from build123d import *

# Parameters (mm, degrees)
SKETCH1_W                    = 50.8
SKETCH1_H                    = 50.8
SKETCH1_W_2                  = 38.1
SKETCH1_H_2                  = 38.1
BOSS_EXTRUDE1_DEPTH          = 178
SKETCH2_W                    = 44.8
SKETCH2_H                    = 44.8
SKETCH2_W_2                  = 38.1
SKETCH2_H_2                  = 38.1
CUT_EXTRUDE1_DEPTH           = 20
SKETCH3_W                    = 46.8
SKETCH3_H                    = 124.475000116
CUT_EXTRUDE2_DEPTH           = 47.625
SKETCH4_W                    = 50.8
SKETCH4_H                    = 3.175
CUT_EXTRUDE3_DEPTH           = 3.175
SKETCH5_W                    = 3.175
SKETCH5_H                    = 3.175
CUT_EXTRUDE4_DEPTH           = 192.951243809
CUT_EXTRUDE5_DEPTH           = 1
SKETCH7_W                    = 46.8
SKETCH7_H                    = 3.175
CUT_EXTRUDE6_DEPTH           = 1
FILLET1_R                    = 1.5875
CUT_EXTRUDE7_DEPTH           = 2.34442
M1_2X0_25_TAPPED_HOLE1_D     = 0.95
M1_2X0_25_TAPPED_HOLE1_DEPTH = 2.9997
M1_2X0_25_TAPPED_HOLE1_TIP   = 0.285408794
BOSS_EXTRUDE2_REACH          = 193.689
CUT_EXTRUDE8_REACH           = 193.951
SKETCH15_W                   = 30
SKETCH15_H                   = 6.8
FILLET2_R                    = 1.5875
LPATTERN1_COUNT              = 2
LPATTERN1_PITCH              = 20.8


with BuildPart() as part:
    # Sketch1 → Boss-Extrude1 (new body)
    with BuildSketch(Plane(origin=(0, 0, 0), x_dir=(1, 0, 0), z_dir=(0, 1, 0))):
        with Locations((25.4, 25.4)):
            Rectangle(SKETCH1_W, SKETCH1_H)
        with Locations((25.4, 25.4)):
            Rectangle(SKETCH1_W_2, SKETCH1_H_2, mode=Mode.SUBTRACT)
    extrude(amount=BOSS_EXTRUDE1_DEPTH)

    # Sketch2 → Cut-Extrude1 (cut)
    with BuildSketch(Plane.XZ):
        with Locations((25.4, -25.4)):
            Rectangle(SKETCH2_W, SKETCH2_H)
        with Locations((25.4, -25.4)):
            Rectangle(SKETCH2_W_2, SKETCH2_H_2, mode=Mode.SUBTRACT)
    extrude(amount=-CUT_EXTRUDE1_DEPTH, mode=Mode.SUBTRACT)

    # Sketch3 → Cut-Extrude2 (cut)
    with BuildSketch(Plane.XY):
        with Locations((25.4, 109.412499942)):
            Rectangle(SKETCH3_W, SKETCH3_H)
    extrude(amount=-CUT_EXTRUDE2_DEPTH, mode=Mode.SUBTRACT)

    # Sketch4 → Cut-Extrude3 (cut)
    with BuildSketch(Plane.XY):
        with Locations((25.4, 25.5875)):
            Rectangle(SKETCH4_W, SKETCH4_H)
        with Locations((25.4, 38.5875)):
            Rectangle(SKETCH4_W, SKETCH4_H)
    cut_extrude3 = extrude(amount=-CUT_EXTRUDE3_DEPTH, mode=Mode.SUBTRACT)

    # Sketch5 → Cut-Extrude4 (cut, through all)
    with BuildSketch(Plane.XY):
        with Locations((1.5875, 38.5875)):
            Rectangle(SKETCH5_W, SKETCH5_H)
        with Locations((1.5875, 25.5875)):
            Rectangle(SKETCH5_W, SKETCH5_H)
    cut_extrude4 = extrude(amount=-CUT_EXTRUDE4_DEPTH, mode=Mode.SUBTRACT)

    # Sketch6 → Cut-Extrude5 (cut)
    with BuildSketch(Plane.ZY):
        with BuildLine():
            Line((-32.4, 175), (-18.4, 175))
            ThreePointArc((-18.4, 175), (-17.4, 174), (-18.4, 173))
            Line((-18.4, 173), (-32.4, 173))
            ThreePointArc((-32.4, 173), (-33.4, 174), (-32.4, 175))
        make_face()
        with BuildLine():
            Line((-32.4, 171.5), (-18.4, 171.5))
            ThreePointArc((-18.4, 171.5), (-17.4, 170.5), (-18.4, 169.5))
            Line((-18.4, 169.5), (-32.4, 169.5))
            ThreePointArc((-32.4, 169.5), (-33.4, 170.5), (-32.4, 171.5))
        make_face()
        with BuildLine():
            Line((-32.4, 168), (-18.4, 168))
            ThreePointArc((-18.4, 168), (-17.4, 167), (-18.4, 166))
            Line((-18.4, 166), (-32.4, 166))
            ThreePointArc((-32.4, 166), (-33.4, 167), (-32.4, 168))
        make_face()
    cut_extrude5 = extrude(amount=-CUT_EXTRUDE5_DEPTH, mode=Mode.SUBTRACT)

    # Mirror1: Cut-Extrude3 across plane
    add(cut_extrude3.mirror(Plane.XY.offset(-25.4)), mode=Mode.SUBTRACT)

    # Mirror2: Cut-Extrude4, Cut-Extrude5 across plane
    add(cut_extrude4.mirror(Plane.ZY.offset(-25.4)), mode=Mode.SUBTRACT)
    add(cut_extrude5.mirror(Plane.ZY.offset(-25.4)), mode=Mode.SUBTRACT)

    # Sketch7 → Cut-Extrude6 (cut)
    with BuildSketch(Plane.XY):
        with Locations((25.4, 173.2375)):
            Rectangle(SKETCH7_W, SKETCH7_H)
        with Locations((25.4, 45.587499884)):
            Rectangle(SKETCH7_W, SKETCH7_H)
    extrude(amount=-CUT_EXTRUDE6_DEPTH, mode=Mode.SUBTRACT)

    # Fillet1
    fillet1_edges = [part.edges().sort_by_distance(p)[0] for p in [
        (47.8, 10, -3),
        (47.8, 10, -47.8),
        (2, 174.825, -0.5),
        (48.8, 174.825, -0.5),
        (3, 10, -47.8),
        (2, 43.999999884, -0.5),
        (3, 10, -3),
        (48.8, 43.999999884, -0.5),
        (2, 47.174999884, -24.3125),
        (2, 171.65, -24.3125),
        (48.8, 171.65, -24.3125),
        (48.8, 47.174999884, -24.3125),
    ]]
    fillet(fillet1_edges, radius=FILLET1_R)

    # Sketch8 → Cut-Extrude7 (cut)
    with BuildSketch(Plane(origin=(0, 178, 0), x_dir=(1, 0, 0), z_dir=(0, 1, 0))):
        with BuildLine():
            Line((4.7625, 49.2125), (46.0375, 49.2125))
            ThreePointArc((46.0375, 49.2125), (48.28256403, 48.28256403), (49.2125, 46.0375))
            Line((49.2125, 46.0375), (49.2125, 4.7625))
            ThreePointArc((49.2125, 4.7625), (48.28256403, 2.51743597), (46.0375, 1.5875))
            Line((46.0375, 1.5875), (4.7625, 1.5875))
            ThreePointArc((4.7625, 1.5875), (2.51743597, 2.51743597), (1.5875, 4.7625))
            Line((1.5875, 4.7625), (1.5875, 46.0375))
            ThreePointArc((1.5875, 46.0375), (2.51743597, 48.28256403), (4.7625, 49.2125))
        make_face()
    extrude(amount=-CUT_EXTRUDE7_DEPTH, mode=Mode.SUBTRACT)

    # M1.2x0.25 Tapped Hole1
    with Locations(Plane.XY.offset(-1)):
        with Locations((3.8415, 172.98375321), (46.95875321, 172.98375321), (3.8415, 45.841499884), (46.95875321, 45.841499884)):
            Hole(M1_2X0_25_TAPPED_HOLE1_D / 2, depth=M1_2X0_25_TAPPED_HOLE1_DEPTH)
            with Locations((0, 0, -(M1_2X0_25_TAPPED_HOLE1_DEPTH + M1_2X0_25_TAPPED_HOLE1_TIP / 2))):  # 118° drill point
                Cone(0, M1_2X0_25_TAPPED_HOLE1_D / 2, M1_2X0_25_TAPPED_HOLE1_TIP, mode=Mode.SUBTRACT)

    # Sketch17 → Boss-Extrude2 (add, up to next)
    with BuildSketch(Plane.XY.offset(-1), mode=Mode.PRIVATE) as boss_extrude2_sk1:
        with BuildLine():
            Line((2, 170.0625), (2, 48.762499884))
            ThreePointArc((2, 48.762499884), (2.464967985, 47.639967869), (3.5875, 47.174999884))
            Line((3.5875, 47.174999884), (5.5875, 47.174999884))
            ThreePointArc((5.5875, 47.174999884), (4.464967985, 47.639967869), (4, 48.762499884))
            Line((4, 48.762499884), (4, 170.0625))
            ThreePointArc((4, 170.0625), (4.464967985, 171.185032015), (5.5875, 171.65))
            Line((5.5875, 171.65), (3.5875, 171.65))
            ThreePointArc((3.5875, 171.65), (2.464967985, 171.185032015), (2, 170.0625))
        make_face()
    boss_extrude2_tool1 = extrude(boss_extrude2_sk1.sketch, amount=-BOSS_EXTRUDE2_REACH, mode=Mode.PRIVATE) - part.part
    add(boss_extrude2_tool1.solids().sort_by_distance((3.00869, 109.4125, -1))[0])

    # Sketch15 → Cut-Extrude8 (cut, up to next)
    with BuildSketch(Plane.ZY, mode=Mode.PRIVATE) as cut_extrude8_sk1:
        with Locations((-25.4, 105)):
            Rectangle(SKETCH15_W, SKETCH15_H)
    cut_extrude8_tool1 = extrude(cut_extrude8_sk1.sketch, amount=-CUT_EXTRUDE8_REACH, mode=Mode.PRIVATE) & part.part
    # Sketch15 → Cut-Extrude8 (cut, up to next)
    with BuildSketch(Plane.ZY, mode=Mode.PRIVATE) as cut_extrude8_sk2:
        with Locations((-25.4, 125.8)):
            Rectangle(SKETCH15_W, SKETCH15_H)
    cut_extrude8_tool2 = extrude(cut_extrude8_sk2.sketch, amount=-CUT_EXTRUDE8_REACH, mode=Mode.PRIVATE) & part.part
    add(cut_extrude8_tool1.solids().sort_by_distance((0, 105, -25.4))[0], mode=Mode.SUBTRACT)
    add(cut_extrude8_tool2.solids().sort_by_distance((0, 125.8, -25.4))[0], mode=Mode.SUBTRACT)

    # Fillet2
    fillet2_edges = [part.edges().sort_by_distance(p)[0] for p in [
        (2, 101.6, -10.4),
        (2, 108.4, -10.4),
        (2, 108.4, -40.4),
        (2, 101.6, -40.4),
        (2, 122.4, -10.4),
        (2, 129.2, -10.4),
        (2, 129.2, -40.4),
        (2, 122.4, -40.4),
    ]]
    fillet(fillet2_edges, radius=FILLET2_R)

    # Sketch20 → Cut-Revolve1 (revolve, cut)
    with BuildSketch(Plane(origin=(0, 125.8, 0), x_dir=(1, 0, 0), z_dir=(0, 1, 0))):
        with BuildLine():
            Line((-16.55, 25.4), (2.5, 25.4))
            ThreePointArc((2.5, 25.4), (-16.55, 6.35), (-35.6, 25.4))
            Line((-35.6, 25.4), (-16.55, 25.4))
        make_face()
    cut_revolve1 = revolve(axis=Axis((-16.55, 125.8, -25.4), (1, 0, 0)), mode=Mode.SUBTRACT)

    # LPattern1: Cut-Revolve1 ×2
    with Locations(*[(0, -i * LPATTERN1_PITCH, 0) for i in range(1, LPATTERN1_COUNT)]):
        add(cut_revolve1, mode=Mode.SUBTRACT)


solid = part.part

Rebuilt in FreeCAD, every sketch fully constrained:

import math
import FreeCAD as App
import Part
import Sketcher
from FreeCAD import Vector


def edges_at(feature, points):
    """Names of the edges that pass closest to the given points."""
    edges = feature.Shape.Edges
    near = lambda p: min(range(len(edges)), key=lambda i: edges[i].distToShape(Part.Vertex(*p))[0])
    return sorted({f"Edge{near(p) + 1}" for p in points})

doc = App.newDocument("Part")
params = doc.addObject("Spreadsheet::Sheet", "Params")
for row, (alias, value) in enumerate([
    ("sketch1_width", "50.8 mm"),
    ("sketch1_width2", "38.1 mm"),
    ("pad1_length", "178 mm"),
    ("sketch2_width", "44.8 mm"),
    ("sketch2_width2", "38.1 mm"),
    ("pocket1_length", "20 mm"),
    ("sketch3_width", "46.8 mm"),
    ("pocket2_length", "47.625 mm"),
    ("sketch4_width", "50.8 mm"),
    ("pocket3_length", "3.175 mm"),
    ("sketch6_radius", "1 mm"),
    ("sketch6_height", "14 mm"),
    ("pocket5_length", "1 mm"),
    ("sketch7_width", "46.8 mm"),
    ("pocket6_length", "1 mm"),
    ("fillet_radius", "1.5875 mm"),
    ("pocket7_length", "2.34442 mm"),
    ("sketch9_diameter", "0.95 mm"),
    ("hole_diameter", "0.95 mm"),
    ("hole_depth", "2.9997 mm"),
    ("sketch10_width", "2 mm"),
    ("sketch10_height", "121.3 mm"),
    ("sketch11_height", "30 mm"),
    ("sketch11_width", "6.8 mm"),
    ("sketch12_height", "30 mm"),
    ("sketch12_width", "6.8 mm"),
    ("fillet2_radius", "1.5875 mm"),
    ("sketch13_radius", "19.05 mm"),
    ("groove_angle", "360 deg"),
    ("linearpattern_pitch", "20.8 mm"),
], start=1):
    params.set(f"A{row}", alias)
    params.set(f"B{row}", "=" + value)
    params.setAlias(f"B{row}", alias)

body = doc.addObject("PartDesign::Body", "Body")

# Sketch on XZ plane
sketch1 = body.newObject("Sketcher::SketchObject", "Sketch")
sketch1.AttachmentSupport = (doc.getObject("XZ_Plane"), [""])
sketch1.MapMode = "FlatFace"
sketch1.addGeometry(Part.LineSegment(Vector(0, -51, 0), Vector(0, 0, 0)), False)
sketch1.addGeometry(Part.LineSegment(Vector(0, 0, 0), Vector(51, 0, 0)), False)
sketch1.addGeometry(Part.LineSegment(Vector(51, 0, 0), Vector(51, -51, 0)), False)
sketch1.addGeometry(Part.LineSegment(Vector(51, -51, 0), Vector(0, -51, 0)), False)
sketch1.addGeometry(Part.LineSegment(Vector(44, -6, 0), Vector(6, -6, 0)), False)
sketch1.addGeometry(Part.LineSegment(Vector(6, -6, 0), Vector(6, -44, 0)), False)
sketch1.addGeometry(Part.LineSegment(Vector(6, -44, 0), Vector(44, -44, 0)), False)
sketch1.addGeometry(Part.LineSegment(Vector(44, -44, 0), Vector(44, -6, 0)), False)
sketch1.addConstraint(Sketcher.Constraint("Coincident", 0, 2, 1, 1))
sketch1.addConstraint(Sketcher.Constraint("Coincident", 1, 2, 2, 1))
sketch1.addConstraint(Sketcher.Constraint("Coincident", 2, 2, 3, 1))
sketch1.addConstraint(Sketcher.Constraint("Coincident", 3, 2, 0, 1))
sketch1.addConstraint(Sketcher.Constraint("Coincident", 4, 2, 5, 1))
sketch1.addConstraint(Sketcher.Constraint("Coincident", 5, 2, 6, 1))
sketch1.addConstraint(Sketcher.Constraint("Coincident", 6, 2, 7, 1))
sketch1.addConstraint(Sketcher.Constraint("Coincident", 7, 2, 4, 1))
sketch1.addConstraint(Sketcher.Constraint("Vertical", 0))
sketch1.addConstraint(Sketcher.Constraint("Horizontal", 1))
sketch1.addConstraint(Sketcher.Constraint("Vertical", 2))
sketch1.addConstraint(Sketcher.Constraint("Horizontal", 3))
sketch1.addConstraint(Sketcher.Constraint("Horizontal", 4))
sketch1.addConstraint(Sketcher.Constraint("Vertical", 5))
sketch1.addConstraint(Sketcher.Constraint("Horizontal", 6))
sketch1.addConstraint(Sketcher.Constraint("Vertical", 7))
sketch1.addConstraint(Sketcher.Constraint("Coincident", 0, 2, -1, 1))
sketch1.addConstraint(Sketcher.Constraint("Equal", 3, 0))
sketch1.addConstraint(Sketcher.Constraint("Equal", 6, 5))
sketch1.addConstraint(Sketcher.Constraint("DistanceX", 1, 1, 1, 2, 50.8))
sketch1.addConstraint(Sketcher.Constraint("DistanceX", 4, 2, 4, 1, 38.1))
sketch1.addConstraint(Sketcher.Constraint("DistanceX", -1, 1, 4, 2, 6.35))
sketch1.addConstraint(Sketcher.Constraint("DistanceY", 4, 2, -1, 1, 6.35))
sketch1.setExpression("Constraints[19]", "Params.sketch1_width")
sketch1.setExpression("Constraints[20]", "Params.sketch1_width2")
pad1 = body.newObject("PartDesign::Pad", "Pad")
pad1.Profile = sketch1
pad1.setExpression("Length", "Params.pad1_length")
pad1.Reversed = True

# Sketch on XZ plane
sketch2 = body.newObject("Sketcher::SketchObject", "Sketch001")
sketch2.AttachmentSupport = (doc.getObject("XZ_Plane"), [""])
sketch2.MapMode = "FlatFace"
sketch2.addGeometry(Part.LineSegment(Vector(3, -3, 0), Vector(3, -48, 0)), False)
sketch2.addGeometry(Part.LineSegment(Vector(3, -48, 0), Vector(48, -48, 0)), False)
sketch2.addGeometry(Part.LineSegment(Vector(48, -48, 0), Vector(48, -3, 0)), False)
sketch2.addGeometry(Part.LineSegment(Vector(48, -3, 0), Vector(3, -3, 0)), False)
sketch2.addGeometry(Part.LineSegment(Vector(44, -44, 0), Vector(6, -44, 0)), False)
sketch2.addGeometry(Part.LineSegment(Vector(6, -44, 0), Vector(6, -6, 0)), False)
sketch2.addGeometry(Part.LineSegment(Vector(6, -6, 0), Vector(44, -6, 0)), False)
sketch2.addGeometry(Part.LineSegment(Vector(44, -6, 0), Vector(44, -44, 0)), False)
sketch2.addConstraint(Sketcher.Constraint("Coincident", 0, 2, 1, 1))
sketch2.addConstraint(Sketcher.Constraint("Coincident", 1, 2, 2, 1))
sketch2.addConstraint(Sketcher.Constraint("Coincident", 2, 2, 3, 1))
sketch2.addConstraint(Sketcher.Constraint("Coincident", 3, 2, 0, 1))
sketch2.addConstraint(Sketcher.Constraint("Coincident", 4, 2, 5, 1))
sketch2.addConstraint(Sketcher.Constraint("Coincident", 5, 2, 6, 1))
sketch2.addConstraint(Sketcher.Constraint("Coincident", 6, 2, 7, 1))
sketch2.addConstraint(Sketcher.Constraint("Coincident", 7, 2, 4, 1))
sketch2.addConstraint(Sketcher.Constraint("Vertical", 0))
sketch2.addConstraint(Sketcher.Constraint("Horizontal", 1))
sketch2.addConstraint(Sketcher.Constraint("Vertical", 2))
sketch2.addConstraint(Sketcher.Constraint("Horizontal", 3))
sketch2.addConstraint(Sketcher.Constraint("Horizontal", 4))
sketch2.addConstraint(Sketcher.Constraint("Vertical", 5))
sketch2.addConstraint(Sketcher.Constraint("Horizontal", 6))
sketch2.addConstraint(Sketcher.Constraint("Vertical", 7))
sketch2.addConstraint(Sketcher.Constraint("Equal", 3, 0))
sketch2.addConstraint(Sketcher.Constraint("Equal", 6, 5))
sketch2.addConstraint(Sketcher.Constraint("DistanceX", 1, 1, 1, 2, 44.8))
sketch2.addConstraint(Sketcher.Constraint("DistanceX", 4, 2, 4, 1, 38.1))
sketch2.addConstraint(Sketcher.Constraint("DistanceX", -1, 1, 0, 2, 3.0))
sketch2.addConstraint(Sketcher.Constraint("DistanceY", 2, 2, -1, 1, 3.0))
sketch2.addConstraint(Sketcher.Constraint("DistanceX", -1, 1, 4, 2, 6.35))
sketch2.addConstraint(Sketcher.Constraint("DistanceY", 4, 2, -1, 1, 44.45))
sketch2.setExpression("Constraints[18]", "Params.sketch2_width")
sketch2.setExpression("Constraints[19]", "Params.sketch2_width2")
pocket1 = body.newObject("PartDesign::Pocket", "Pocket")
pocket1.Profile = sketch2
pocket1.setExpression("Length", "Params.pocket1_length")

# Sketch on XY plane
sketch3 = body.newObject("Sketcher::SketchObject", "Sketch002")
sketch3.AttachmentSupport = (doc.getObject("XY_Plane"), [""])
sketch3.MapMode = "FlatFace"
sketch3.addGeometry(Part.LineSegment(Vector(2, 172, 0), Vector(2, 47, 0)), False)
sketch3.addGeometry(Part.LineSegment(Vector(2, 47, 0), Vector(49, 47, 0)), False)
sketch3.addGeometry(Part.LineSegment(Vector(49, 47, 0), Vector(49, 172, 0)), False)
sketch3.addGeometry(Part.LineSegment(Vector(49, 172, 0), Vector(2, 172, 0)), False)
sketch3.addConstraint(Sketcher.Constraint("Coincident", 0, 2, 1, 1))
sketch3.addConstraint(Sketcher.Constraint("Coincident", 1, 2, 2, 1))
sketch3.addConstraint(Sketcher.Constraint("Coincident", 2, 2, 3, 1))
sketch3.addConstraint(Sketcher.Constraint("Coincident", 3, 2, 0, 1))
sketch3.addConstraint(Sketcher.Constraint("Vertical", 0))
sketch3.addConstraint(Sketcher.Constraint("Horizontal", 1))
sketch3.addConstraint(Sketcher.Constraint("Vertical", 2))
sketch3.addConstraint(Sketcher.Constraint("Horizontal", 3))
sketch3.addConstraint(Sketcher.Constraint("DistanceX", 1, 1, 1, 2, 46.8))
sketch3.addConstraint(Sketcher.Constraint("DistanceX", -1, 1, 0, 2, 2.0))
sketch3.addConstraint(Sketcher.Constraint("DistanceY", 0, 2, 0, 1, 124.475))
sketch3.addConstraint(Sketcher.Constraint("DistanceY", -1, 1, 2, 2, 171.65))
sketch3.setExpression("Constraints[8]", "Params.sketch3_width")
pocket2 = body.newObject("PartDesign::Pocket", "Pocket001")
pocket2.Profile = sketch3
pocket2.setExpression("Length", "Params.pocket2_length")

# Sketch on XY plane
sketch4 = body.newObject("Sketcher::SketchObject", "Sketch003")
sketch4.AttachmentSupport = (doc.getObject("XY_Plane"), [""])
sketch4.MapMode = "FlatFace"
sketch4.addGeometry(Part.LineSegment(Vector(0, 27.2, 0), Vector(0, 24, 0)), False)
sketch4.addGeometry(Part.LineSegment(Vector(0, 24, 0), Vector(50.8, 24, 0)), False)
sketch4.addGeometry(Part.LineSegment(Vector(50.8, 24, 0), Vector(50.8, 27.2, 0)), False)
sketch4.addGeometry(Part.LineSegment(Vector(50.8, 27.2, 0), Vector(0, 27.2, 0)), False)
sketch4.addGeometry(Part.LineSegment(Vector(0, 40.2, 0), Vector(0, 37, 0)), False)
sketch4.addGeometry(Part.LineSegment(Vector(0, 37, 0), Vector(50.8, 37, 0)), False)
sketch4.addGeometry(Part.LineSegment(Vector(50.8, 37, 0), Vector(50.8, 40.2, 0)), False)
sketch4.addGeometry(Part.LineSegment(Vector(50.8, 40.2, 0), Vector(0, 40.2, 0)), False)
sketch4.addConstraint(Sketcher.Constraint("Coincident", 0, 2, 1, 1))
sketch4.addConstraint(Sketcher.Constraint("Coincident", 1, 2, 2, 1))
sketch4.addConstraint(Sketcher.Constraint("Coincident", 2, 2, 3, 1))
sketch4.addConstraint(Sketcher.Constraint("Coincident", 3, 2, 0, 1))
sketch4.addConstraint(Sketcher.Constraint("Coincident", 4, 2, 5, 1))
sketch4.addConstraint(Sketcher.Constraint("Coincident", 5, 2, 6, 1))
sketch4.addConstraint(Sketcher.Constraint("Coincident", 6, 2, 7, 1))
sketch4.addConstraint(Sketcher.Constraint("Coincident", 7, 2, 4, 1))
sketch4.addConstraint(Sketcher.Constraint("Vertical", 0))
sketch4.addConstraint(Sketcher.Constraint("Horizontal", 1))
sketch4.addConstraint(Sketcher.Constraint("Vertical", 2))
sketch4.addConstraint(Sketcher.Constraint("Horizontal", 3))
sketch4.addConstraint(Sketcher.Constraint("Vertical", 4))
sketch4.addConstraint(Sketcher.Constraint("Horizontal", 5))
sketch4.addConstraint(Sketcher.Constraint("Vertical", 6))
sketch4.addConstraint(Sketcher.Constraint("Horizontal", 7))
sketch4.addConstraint(Sketcher.Constraint("PointOnObject", 0, 2, -2))
sketch4.addConstraint(Sketcher.Constraint("PointOnObject", 4, 2, -2))
sketch4.addConstraint(Sketcher.Constraint("Vertical", 2, 2, 5, 2))
sketch4.addConstraint(Sketcher.Constraint("Equal", 2, 4))
sketch4.addConstraint(Sketcher.Constraint("DistanceX", 1, 1, 1, 2, 50.8))
sketch4.addConstraint(Sketcher.Constraint("DistanceY", -1, 1, 0, 2, 24.0))
sketch4.addConstraint(Sketcher.Constraint("DistanceY", -1, 1, 4, 2, 37.0))
sketch4.addConstraint(Sketcher.Constraint("DistanceY", 0, 2, 0, 1, 3.175))
sketch4.setExpression("Constraints[20]", "Params.sketch4_width")
pocket3 = body.newObject("PartDesign::Pocket", "Pocket002")
pocket3.Profile = sketch4
pocket3.setExpression("Length", "Params.pocket3_length")

# Sketch on XY plane
sketch5 = body.newObject("Sketcher::SketchObject", "Sketch004")
sketch5.AttachmentSupport = (doc.getObject("XY_Plane"), [""])
sketch5.MapMode = "FlatFace"
sketch5.addGeometry(Part.LineSegment(Vector(0, 40.2, 0), Vector(0, 37, 0)), False)
sketch5.addGeometry(Part.LineSegment(Vector(0, 37, 0), Vector(3.2, 37, 0)), False)
sketch5.addGeometry(Part.LineSegment(Vector(3.2, 37, 0), Vector(3.2, 40.2, 0)), False)
sketch5.addGeometry(Part.LineSegment(Vector(3.2, 40.2, 0), Vector(0, 40.2, 0)), False)
sketch5.addGeometry(Part.LineSegment(Vector(0, 27.2, 0), Vector(0, 24, 0)), False)
sketch5.addGeometry(Part.LineSegment(Vector(0, 24, 0), Vector(3.2, 24, 0)), False)
sketch5.addGeometry(Part.LineSegment(Vector(3.2, 24, 0), Vector(3.2, 27.2, 0)), False)
sketch5.addGeometry(Part.LineSegment(Vector(3.2, 27.2, 0), Vector(0, 27.2, 0)), False)
sketch5.addConstraint(Sketcher.Constraint("Coincident", 0, 2, 1, 1))
sketch5.addConstraint(Sketcher.Constraint("Coincident", 1, 2, 2, 1))
sketch5.addConstraint(Sketcher.Constraint("Coincident", 2, 2, 3, 1))
sketch5.addConstraint(Sketcher.Constraint("Coincident", 3, 2, 0, 1))
sketch5.addConstraint(Sketcher.Constraint("Coincident", 4, 2, 5, 1))
sketch5.addConstraint(Sketcher.Constraint("Coincident", 5, 2, 6, 1))
sketch5.addConstraint(Sketcher.Constraint("Coincident", 6, 2, 7, 1))
sketch5.addConstraint(Sketcher.Constraint("Coincident", 7, 2, 4, 1))
sketch5.addConstraint(Sketcher.Constraint("Vertical", 0))
sketch5.addConstraint(Sketcher.Constraint("Horizontal", 1))
sketch5.addConstraint(Sketcher.Constraint("Vertical", 2))
sketch5.addConstraint(Sketcher.Constraint("Horizontal", 3))
sketch5.addConstraint(Sketcher.Constraint("Vertical", 4))
sketch5.addConstraint(Sketcher.Constraint("Horizontal", 5))
sketch5.addConstraint(Sketcher.Constraint("Vertical", 6))
sketch5.addConstraint(Sketcher.Constraint("Horizontal", 7))
sketch5.addConstraint(Sketcher.Constraint("PointOnObject", 0, 2, -2))
sketch5.addConstraint(Sketcher.Constraint("PointOnObject", 4, 2, -2))
sketch5.addConstraint(Sketcher.Constraint("Vertical", 2, 2, 5, 2))
sketch5.addConstraint(Sketcher.Constraint("Equal", 7, 0))
sketch5.addConstraint(Sketcher.Constraint("Equal", 2, 4))
sketch5.addConstraint(Sketcher.Constraint("DistanceY", -1, 1, 0, 2, 37.0))
sketch5.addConstraint(Sketcher.Constraint("DistanceY", -1, 1, 4, 2, 24.0))
sketch5.addConstraint(Sketcher.Constraint("DistanceX", 1, 1, 1, 2, 3.175))
pocket4 = body.newObject("PartDesign::Pocket", "Pocket003")
pocket4.Profile = sketch5
pocket4.Type = "ThroughAll"

# Sketch on YZ plane
sketch6 = body.newObject("Sketcher::SketchObject", "Sketch005")
sketch6.AttachmentSupport = (doc.getObject("YZ_Plane"), [""])
sketch6.MapMode = "FlatFace"
sketch6.addGeometry(Part.LineSegment(Vector(175, -18.4, 0), Vector(175, -32.4, 0)), False)
sketch6.addGeometry(Part.ArcOfCircle(Part.Circle(Vector(174, -32.4, 0), Vector(0, 0, 1), 1), math.radians(180), math.radians(360)), False)
sketch6.addGeometry(Part.LineSegment(Vector(173, -32.4, 0), Vector(173, -18.4, 0)), False)
sketch6.addGeometry(Part.ArcOfCircle(Part.Circle(Vector(174, -18.4, 0), Vector(0, 0, 1), 1), math.radians(0), math.radians(180)), False)
sketch6.addGeometry(Part.LineSegment(Vector(171.5, -18.4, 0), Vector(171.5, -32.4, 0)), False)
sketch6.addGeometry(Part.ArcOfCircle(Part.Circle(Vector(170.5, -32.4, 0), Vector(0, 0, 1), 1), math.radians(180), math.radians(360)), False)
sketch6.addGeometry(Part.LineSegment(Vector(169.5, -32.4, 0), Vector(169.5, -18.4, 0)), False)
sketch6.addGeometry(Part.ArcOfCircle(Part.Circle(Vector(170.5, -18.4, 0), Vector(0, 0, 1), 1), math.radians(0), math.radians(180)), False)
sketch6.addGeometry(Part.LineSegment(Vector(168, -18.4, 0), Vector(168, -32.4, 0)), False)
sketch6.addGeometry(Part.ArcOfCircle(Part.Circle(Vector(167, -32.4, 0), Vector(0, 0, 1), 1), math.radians(180), math.radians(360)), False)
sketch6.addGeometry(Part.LineSegment(Vector(166, -32.4, 0), Vector(166, -18.4, 0)), False)
sketch6.addGeometry(Part.ArcOfCircle(Part.Circle(Vector(167, -18.4, 0), Vector(0, 0, 1), 1), math.radians(0), math.radians(180)), False)
sketch6.addConstraint(Sketcher.Constraint("Tangent", 0, 2, 1, 2))
sketch6.addConstraint(Sketcher.Constraint("Tangent", 1, 1, 2, 1))
sketch6.addConstraint(Sketcher.Constraint("Tangent", 2, 2, 3, 2))
sketch6.addConstraint(Sketcher.Constraint("Tangent", 3, 1, 0, 1))
sketch6.addConstraint(Sketcher.Constraint("Tangent", 4, 2, 5, 2))
sketch6.addConstraint(Sketcher.Constraint("Tangent", 5, 1, 6, 1))
sketch6.addConstraint(Sketcher.Constraint("Tangent", 6, 2, 7, 2))
sketch6.addConstraint(Sketcher.Constraint("Tangent", 7, 1, 4, 1))
sketch6.addConstraint(Sketcher.Constraint("Tangent", 8, 2, 9, 2))
sketch6.addConstraint(Sketcher.Constraint("Tangent", 9, 1, 10, 1))
sketch6.addConstraint(Sketcher.Constraint("Tangent", 10, 2, 11, 2))
sketch6.addConstraint(Sketcher.Constraint("Tangent", 11, 1, 8, 1))
sketch6.addConstraint(Sketcher.Constraint("Vertical", 0))
sketch6.addConstraint(Sketcher.Constraint("Vertical", 2))
sketch6.addConstraint(Sketcher.Constraint("Vertical", 4))
sketch6.addConstraint(Sketcher.Constraint("Vertical", 6))
sketch6.addConstraint(Sketcher.Constraint("Vertical", 8))
sketch6.addConstraint(Sketcher.Constraint("Vertical", 10))
sketch6.addConstraint(Sketcher.Constraint("Equal", 3, 5))
sketch6.addConstraint(Sketcher.Constraint("Equal", 7, 9))
sketch6.addConstraint(Sketcher.Constraint("Horizontal", 1, 3, 5, 3))
sketch6.addConstraint(Sketcher.Constraint("Horizontal", 3, 3, 7, 3))
sketch6.addConstraint(Sketcher.Constraint("Horizontal", 5, 3, 9, 3))
sketch6.addConstraint(Sketcher.Constraint("Horizontal", 7, 3, 11, 3))
sketch6.addConstraint(Sketcher.Constraint("Radius", 1, 1.0))
sketch6.addConstraint(Sketcher.Constraint("DistanceY", 0, 2, 0, 1, 14.0))
sketch6.addConstraint(Sketcher.Constraint("DistanceX", -1, 1, 1, 3, 174.0))
sketch6.addConstraint(Sketcher.Constraint("DistanceX", -1, 1, 9, 3, 167.0))
sketch6.addConstraint(Sketcher.Constraint("DistanceY", 1, 3, -1, 1, 32.4))
sketch6.addConstraint(Sketcher.Constraint("DistanceX", -1, 1, 5, 3, 170.5))
sketch6.setExpression("Constraints[24]", "Params.sketch6_radius")
sketch6.setExpression("Constraints[25]", "Params.sketch6_height")
pocket5 = body.newObject("PartDesign::Pocket", "Pocket004")
pocket5.Profile = sketch6
pocket5.setExpression("Length", "Params.pocket5_length")
pocket5.Reversed = True
doc.recompute()

datumplane = body.newObject("PartDesign::Plane", "DatumPlane")
datumplane.AttachmentSupport = (doc.getObject("XY_Plane"), [""])
datumplane.MapMode = "FlatFace"
datumplane.AttachmentOffset = App.Placement(Vector(0, 0, -25.4), App.Rotation())
mirrored = body.newObject("PartDesign::Mirrored", "Mirrored")
mirrored.Originals = [pocket3]
mirrored.MirrorPlane = (datumplane, [""])
body.Tip = mirrored
doc.recompute()

datumplane2 = body.newObject("PartDesign::Plane", "DatumPlane001")
datumplane2.AttachmentSupport = (doc.getObject("YZ_Plane"), [""])
datumplane2.MapMode = "FlatFace"
datumplane2.AttachmentOffset = App.Placement(Vector(0, 0, 25.4), App.Rotation())
mirrored2 = body.newObject("PartDesign::Mirrored", "Mirrored001")
mirrored2.Originals = [pocket4, pocket5]
mirrored2.MirrorPlane = (datumplane2, [""])
body.Tip = mirrored2

# Sketch on XY plane
sketch7 = body.newObject("Sketcher::SketchObject", "Sketch006")
sketch7.AttachmentSupport = (doc.getObject("XY_Plane"), [""])
sketch7.MapMode = "FlatFace"
sketch7.addGeometry(Part.LineSegment(Vector(2, 174.8, 0), Vector(2, 171.7, 0)), False)
sketch7.addGeometry(Part.LineSegment(Vector(2, 171.7, 0), Vector(48.8, 171.7, 0)), False)
sketch7.addGeometry(Part.LineSegment(Vector(48.8, 171.7, 0), Vector(48.8, 174.8, 0)), False)
sketch7.addGeometry(Part.LineSegment(Vector(48.8, 174.8, 0), Vector(2, 174.8, 0)), False)
sketch7.addGeometry(Part.LineSegment(Vector(2, 47.2, 0), Vector(2, 44, 0)), False)
sketch7.addGeometry(Part.LineSegment(Vector(2, 44, 0), Vector(48.8, 44, 0)), False)
sketch7.addGeometry(Part.LineSegment(Vector(48.8, 44, 0), Vector(48.8, 47.2, 0)), False)
sketch7.addGeometry(Part.LineSegment(Vector(48.8, 47.2, 0), Vector(2, 47.2, 0)), False)
sketch7.addConstraint(Sketcher.Constraint("Coincident", 0, 2, 1, 1))
sketch7.addConstraint(Sketcher.Constraint("Coincident", 1, 2, 2, 1))
sketch7.addConstraint(Sketcher.Constraint("Coincident", 2, 2, 3, 1))
sketch7.addConstraint(Sketcher.Constraint("Coincident", 3, 2, 0, 1))
sketch7.addConstraint(Sketcher.Constraint("Coincident", 4, 2, 5, 1))
sketch7.addConstraint(Sketcher.Constraint("Coincident", 5, 2, 6, 1))
sketch7.addConstraint(Sketcher.Constraint("Coincident", 6, 2, 7, 1))
sketch7.addConstraint(Sketcher.Constraint("Coincident", 7, 2, 4, 1))
sketch7.addConstraint(Sketcher.Constraint("Vertical", 0))
sketch7.addConstraint(Sketcher.Constraint("Horizontal", 1))
sketch7.addConstraint(Sketcher.Constraint("Vertical", 2))
sketch7.addConstraint(Sketcher.Constraint("Horizontal", 3))
sketch7.addConstraint(Sketcher.Constraint("Vertical", 4))
sketch7.addConstraint(Sketcher.Constraint("Horizontal", 5))
sketch7.addConstraint(Sketcher.Constraint("Vertical", 6))
sketch7.addConstraint(Sketcher.Constraint("Horizontal", 7))
sketch7.addConstraint(Sketcher.Constraint("Vertical", 3, 2, 4, 2))
sketch7.addConstraint(Sketcher.Constraint("Vertical", 2, 2, 5, 2))
sketch7.addConstraint(Sketcher.Constraint("Equal", 2, 4))
sketch7.addConstraint(Sketcher.Constraint("DistanceX", 1, 1, 1, 2, 46.8))
sketch7.addConstraint(Sketcher.Constraint("DistanceX", -1, 1, 0, 2, 2.0))
sketch7.addConstraint(Sketcher.Constraint("DistanceY", -1, 1, 4, 2, 44.0))
sketch7.addConstraint(Sketcher.Constraint("DistanceY", 0, 2, 0, 1, 3.175))
sketch7.addConstraint(Sketcher.Constraint("DistanceY", -1, 1, 0, 2, 171.65))
sketch7.setExpression("Constraints[19]", "Params.sketch7_width")
pocket6 = body.newObject("PartDesign::Pocket", "Pocket005")
pocket6.Profile = sketch7
pocket6.setExpression("Length", "Params.pocket6_length")
doc.recompute()

fillet = body.newObject("PartDesign::Fillet", "Fillet")
fillet.Base = (pocket6, edges_at(pocket6, [
    (47.8, 10, -3),
    (47.8, 10, -47.8),
    (2, 174.825, -0.5),
    (48.8, 174.825, -0.5),
    (3, 10, -47.8),
    (2, 44, -0.5),
    (3, 10, -3),
    (48.8, 44, -0.5),
    (2, 47.175, -24.312),
    (2, 171.65, -24.312),
    (48.8, 171.65, -24.312),
    (48.8, 47.175, -24.312),
]))
fillet.setExpression("Radius", "Params.fillet_radius")

# Sketch on XZ plane
sketch8 = body.newObject("Sketcher::SketchObject", "Sketch007")
sketch8.AttachmentSupport = (doc.getObject("XZ_Plane"), [""])
sketch8.MapMode = "FlatFace"
sketch8.AttachmentOffset = App.Placement(Vector(0, 0, -178), App.Rotation())
sketch8.addGeometry(Part.LineSegment(Vector(46, -49.2, 0), Vector(4.8, -49.2, 0)), False)
sketch8.addGeometry(Part.ArcOfCircle(Part.Circle(Vector(4.8, -46, 0), Vector(0, 0, 1), 3.2), math.radians(-180), math.radians(-90)), False)
sketch8.addGeometry(Part.LineSegment(Vector(1.6, -46, 0), Vector(1.6, -4.8, 0)), False)
sketch8.addGeometry(Part.ArcOfCircle(Part.Circle(Vector(4.8, -4.8, 0), Vector(0, 0, 1), 3.2), math.radians(90), math.radians(180)), False)
sketch8.addGeometry(Part.LineSegment(Vector(4.8, -1.6, 0), Vector(46, -1.6, 0)), False)
sketch8.addGeometry(Part.ArcOfCircle(Part.Circle(Vector(46, -4.8, 0), Vector(0, 0, 1), 3.2), math.radians(0), math.radians(90)), False)
sketch8.addGeometry(Part.LineSegment(Vector(49.2, -4.8, 0), Vector(49.2, -46, 0)), False)
sketch8.addGeometry(Part.ArcOfCircle(Part.Circle(Vector(46, -46, 0), Vector(0, 0, 1), 3.2), math.radians(-90), math.radians(0)), False)
sketch8.addConstraint(Sketcher.Constraint("Tangent", 0, 2, 1, 2))
sketch8.addConstraint(Sketcher.Constraint("Tangent", 1, 1, 2, 1))
sketch8.addConstraint(Sketcher.Constraint("Tangent", 2, 2, 3, 2))
sketch8.addConstraint(Sketcher.Constraint("Tangent", 3, 1, 4, 1))
sketch8.addConstraint(Sketcher.Constraint("Tangent", 4, 2, 5, 2))
sketch8.addConstraint(Sketcher.Constraint("Tangent", 5, 1, 6, 1))
sketch8.addConstraint(Sketcher.Constraint("Tangent", 6, 2, 7, 2))
sketch8.addConstraint(Sketcher.Constraint("Tangent", 7, 1, 0, 1))
sketch8.addConstraint(Sketcher.Constraint("Horizontal", 0))
sketch8.addConstraint(Sketcher.Constraint("Vertical", 2))
sketch8.addConstraint(Sketcher.Constraint("Horizontal", 4))
sketch8.addConstraint(Sketcher.Constraint("Vertical", 6))
sketch8.addConstraint(Sketcher.Constraint("Equal", 1, 3))
sketch8.addConstraint(Sketcher.Constraint("Equal", 3, 5))
sketch8.addConstraint(Sketcher.Constraint("Equal", 5, 7))
sketch8.addConstraint(Sketcher.Constraint("Equal", 4, 2))
sketch8.addConstraint(Sketcher.Constraint("Radius", 1, 3.175))
sketch8.addConstraint(Sketcher.Constraint("DistanceX", 0, 2, 0, 1, 41.275))
sketch8.addConstraint(Sketcher.Constraint("DistanceX", -1, 1, 1, 3, 4.7625))
sketch8.addConstraint(Sketcher.Constraint("DistanceY", 1, 3, -1, 1, 46.0375))
pocket7 = body.newObject("PartDesign::Pocket", "Pocket006")
pocket7.Profile = sketch8
pocket7.setExpression("Length", "Params.pocket7_length")
pocket7.Reversed = True

# Sketch on XY plane
sketch9 = body.newObject("Sketcher::SketchObject", "Sketch008")
sketch9.AttachmentSupport = (doc.getObject("XY_Plane"), [""])
sketch9.MapMode = "FlatFace"
sketch9.AttachmentOffset = App.Placement(Vector(0, 0, -1), App.Rotation())
sketch9.addGeometry(Part.Circle(Vector(3.84, 172.98, 0), Vector(0, 0, 1), 0.47), False)
sketch9.addGeometry(Part.Circle(Vector(46.96, 172.98, 0), Vector(0, 0, 1), 0.47), False)
sketch9.addGeometry(Part.Circle(Vector(3.84, 45.84, 0), Vector(0, 0, 1), 0.47), False)
sketch9.addGeometry(Part.Circle(Vector(46.96, 45.84, 0), Vector(0, 0, 1), 0.47), False)
sketch9.addConstraint(Sketcher.Constraint("Equal", 0, 1))
sketch9.addConstraint(Sketcher.Constraint("Equal", 1, 2))
sketch9.addConstraint(Sketcher.Constraint("Equal", 2, 3))
sketch9.addConstraint(Sketcher.Constraint("Horizontal", 0, 3, 1, 3))
sketch9.addConstraint(Sketcher.Constraint("Horizontal", 2, 3, 3, 3))
sketch9.addConstraint(Sketcher.Constraint("Vertical", 0, 3, 2, 3))
sketch9.addConstraint(Sketcher.Constraint("Vertical", 1, 3, 3, 3))
sketch9.addConstraint(Sketcher.Constraint("Diameter", 0, 0.95))
sketch9.addConstraint(Sketcher.Constraint("DistanceX", -1, 1, 0, 3, 3.8415))
sketch9.addConstraint(Sketcher.Constraint("DistanceY", -1, 1, 2, 3, 45.8415))
sketch9.addConstraint(Sketcher.Constraint("DistanceY", -1, 1, 0, 3, 172.983753))
sketch9.addConstraint(Sketcher.Constraint("DistanceX", -1, 1, 1, 3, 46.958753))
sketch9.setExpression("Constraints[7]", "Params.sketch9_diameter")
doc.recompute()
hole = body.newObject("PartDesign::Hole", "Hole")
hole.Profile = sketch9
hole.ThreadType = "None"
hole.setExpression("Diameter", "Params.hole_diameter")
hole.DepthType = "Dimension"
hole.setExpression("Depth", "Params.hole_depth")
hole.DrillPoint = "Angled"
hole.DrillPointAngle = 118

# Sketch on XY plane
sketch10 = body.newObject("Sketcher::SketchObject", "Sketch009")
sketch10.AttachmentSupport = (doc.getObject("XY_Plane"), [""])
sketch10.MapMode = "FlatFace"
sketch10.AttachmentOffset = App.Placement(Vector(0, 0, -1), App.Rotation())
sketch10.addGeometry(Part.LineSegment(Vector(2, 170.1, 0), Vector(2, 48.8, 0)), False)
sketch10.addGeometry(Part.ArcOfCircle(Part.Circle(Vector(3.6, 48.8, 0), Vector(0, 0, 1), 1.6), math.radians(180), math.radians(270)), False)
sketch10.addGeometry(Part.LineSegment(Vector(3.6, 47.2, 0), Vector(5.6, 47.2, 0)), False)
sketch10.addGeometry(Part.ArcOfCircle(Part.Circle(Vector(5.6, 48.8, 0), Vector(0, 0, 1), 1.6), math.radians(180), math.radians(270)), False)
sketch10.addGeometry(Part.LineSegment(Vector(4, 48.8, 0), Vector(4, 170.1, 0)), False)
sketch10.addGeometry(Part.ArcOfCircle(Part.Circle(Vector(5.6, 170.1, 0), Vector(0, 0, 1), 1.6), math.radians(90), math.radians(180)), False)
sketch10.addGeometry(Part.LineSegment(Vector(5.6, 171.7, 0), Vector(3.6, 171.7, 0)), False)
sketch10.addGeometry(Part.ArcOfCircle(Part.Circle(Vector(3.6, 170.1, 0), Vector(0, 0, 1), 1.6), math.radians(90), math.radians(180)), False)
sketch10.addConstraint(Sketcher.Constraint("Tangent", 0, 2, 1, 1))
sketch10.addConstraint(Sketcher.Constraint("Tangent", 1, 2, 2, 1))
sketch10.addConstraint(Sketcher.Constraint("Tangent", 2, 2, 3, 2))
sketch10.addConstraint(Sketcher.Constraint("Tangent", 3, 1, 4, 1))
sketch10.addConstraint(Sketcher.Constraint("Tangent", 4, 2, 5, 2))
sketch10.addConstraint(Sketcher.Constraint("Tangent", 5, 1, 6, 1))
sketch10.addConstraint(Sketcher.Constraint("Tangent", 6, 2, 7, 1))
sketch10.addConstraint(Sketcher.Constraint("Tangent", 7, 2, 0, 1))
sketch10.addConstraint(Sketcher.Constraint("Vertical", 0))
sketch10.addConstraint(Sketcher.Constraint("Horizontal", 2))
sketch10.addConstraint(Sketcher.Constraint("Vertical", 4))
sketch10.addConstraint(Sketcher.Constraint("Horizontal", 6))
sketch10.addConstraint(Sketcher.Constraint("Equal", 1, 3))
sketch10.addConstraint(Sketcher.Constraint("Equal", 3, 5))
sketch10.addConstraint(Sketcher.Constraint("Equal", 5, 7))
sketch10.addConstraint(Sketcher.Constraint("DistanceX", 2, 1, 2, 2, 2.0))
sketch10.addConstraint(Sketcher.Constraint("DistanceY", 0, 2, 0, 1, 121.3))
sketch10.addConstraint(Sketcher.Constraint("DistanceX", -1, 1, 0, 2, 2.0))
sketch10.addConstraint(Sketcher.Constraint("Radius", 1, 1.5875))
sketch10.addConstraint(Sketcher.Constraint("DistanceY", -1, 1, 5, 1, 171.65))
sketch10.setExpression("Constraints[15]", "Params.sketch10_width")
sketch10.setExpression("Constraints[16]", "Params.sketch10_height")
pad2 = body.newObject("PartDesign::Pad", "Pad001")
pad2.Profile = sketch10
pad2.Type = "UpToFirst"
pad2.Reversed = True

# Sketch on YZ plane
sketch11 = body.newObject("Sketcher::SketchObject", "Sketch010")
sketch11.AttachmentSupport = (doc.getObject("YZ_Plane"), [""])
sketch11.MapMode = "FlatFace"
sketch11.addGeometry(Part.LineSegment(Vector(108, -40, 0), Vector(102, -40, 0)), False)
sketch11.addGeometry(Part.LineSegment(Vector(102, -40, 0), Vector(102, -10, 0)), False)
sketch11.addGeometry(Part.LineSegment(Vector(102, -10, 0), Vector(108, -10, 0)), False)
sketch11.addGeometry(Part.LineSegment(Vector(108, -10, 0), Vector(108, -40, 0)), False)
sketch11.addConstraint(Sketcher.Constraint("Coincident", 0, 2, 1, 1))
sketch11.addConstraint(Sketcher.Constraint("Coincident", 1, 2, 2, 1))
sketch11.addConstraint(Sketcher.Constraint("Coincident", 2, 2, 3, 1))
sketch11.addConstraint(Sketcher.Constraint("Coincident", 3, 2, 0, 1))
sketch11.addConstraint(Sketcher.Constraint("Horizontal", 0))
sketch11.addConstraint(Sketcher.Constraint("Vertical", 1))
sketch11.addConstraint(Sketcher.Constraint("Horizontal", 2))
sketch11.addConstraint(Sketcher.Constraint("Vertical", 3))
sketch11.addConstraint(Sketcher.Constraint("DistanceY", 1, 1, 1, 2, 30.0))
sketch11.addConstraint(Sketcher.Constraint("DistanceX", 0, 2, 0, 1, 6.8))
sketch11.addConstraint(Sketcher.Constraint("DistanceX", -1, 1, 0, 2, 101.6))
sketch11.addConstraint(Sketcher.Constraint("DistanceY", 0, 2, -1, 1, 40.4))
sketch11.setExpression("Constraints[8]", "Params.sketch11_height")
sketch11.setExpression("Constraints[9]", "Params.sketch11_width")
pocket8 = body.newObject("PartDesign::Pocket", "Pocket007")
pocket8.Profile = sketch11
pocket8.Type = "UpToFirst"
pocket8.Reversed = True

# Sketch on YZ plane
sketch12 = body.newObject("Sketcher::SketchObject", "Sketch011")
sketch12.AttachmentSupport = (doc.getObject("YZ_Plane"), [""])
sketch12.MapMode = "FlatFace"
sketch12.addGeometry(Part.LineSegment(Vector(129, -40, 0), Vector(122, -40, 0)), False)
sketch12.addGeometry(Part.LineSegment(Vector(122, -40, 0), Vector(122, -10, 0)), False)
sketch12.addGeometry(Part.LineSegment(Vector(122, -10, 0), Vector(129, -10, 0)), False)
sketch12.addGeometry(Part.LineSegment(Vector(129, -10, 0), Vector(129, -40, 0)), False)
sketch12.addConstraint(Sketcher.Constraint("Coincident", 0, 2, 1, 1))
sketch12.addConstraint(Sketcher.Constraint("Coincident", 1, 2, 2, 1))
sketch12.addConstraint(Sketcher.Constraint("Coincident", 2, 2, 3, 1))
sketch12.addConstraint(Sketcher.Constraint("Coincident", 3, 2, 0, 1))
sketch12.addConstraint(Sketcher.Constraint("Horizontal", 0))
sketch12.addConstraint(Sketcher.Constraint("Vertical", 1))
sketch12.addConstraint(Sketcher.Constraint("Horizontal", 2))
sketch12.addConstraint(Sketcher.Constraint("Vertical", 3))
sketch12.addConstraint(Sketcher.Constraint("DistanceY", 1, 1, 1, 2, 30.0))
sketch12.addConstraint(Sketcher.Constraint("DistanceX", 0, 2, 0, 1, 6.8))
sketch12.addConstraint(Sketcher.Constraint("DistanceX", -1, 1, 0, 2, 122.4))
sketch12.addConstraint(Sketcher.Constraint("DistanceY", 0, 2, -1, 1, 40.4))
sketch12.setExpression("Constraints[8]", "Params.sketch12_height")
sketch12.setExpression("Constraints[9]", "Params.sketch12_width")
pocket9 = body.newObject("PartDesign::Pocket", "Pocket008")
pocket9.Profile = sketch12
pocket9.Type = "UpToFirst"
pocket9.Reversed = True
doc.recompute()

fillet2 = body.newObject("PartDesign::Fillet", "Fillet001")
fillet2.Base = (pocket9, edges_at(pocket9, [
    (2, 101.6, -10.4),
    (2, 108.4, -10.4),
    (2, 108.4, -40.4),
    (2, 101.6, -40.4),
    (2, 122.4, -10.4),
    (2, 129.2, -10.4),
    (2, 129.2, -40.4),
    (2, 122.4, -40.4),
]))
fillet2.setExpression("Radius", "Params.fillet2_radius")

# Sketch on XZ plane
sketch13 = body.newObject("Sketcher::SketchObject", "Sketch012")
sketch13.AttachmentSupport = (doc.getObject("XZ_Plane"), [""])
sketch13.MapMode = "FlatFace"
sketch13.AttachmentOffset = App.Placement(Vector(0, 0, -125.8), App.Rotation())
sketch13.addGeometry(Part.ArcOfCircle(Part.Circle(Vector(-17, -25, 0), Vector(0, 0, 1), 19), math.radians(0), math.radians(180)), False)
sketch13.addGeometry(Part.LineSegment(Vector(2, -25, 0), Vector(-36, -25, 0)), False)
sketch13.addGeometry(Part.LineSegment(Vector(-36, -25, 0), Vector(2, -25, 0)), True)  # axis
sketch13.addConstraint(Sketcher.Constraint("Coincident", 0, 1, 1, 1))
sketch13.addConstraint(Sketcher.Constraint("Coincident", 1, 2, 0, 2))
sketch13.addConstraint(Sketcher.Constraint("Horizontal", 1))
sketch13.addConstraint(Sketcher.Constraint("Horizontal", 2))
sketch13.addConstraint(Sketcher.Constraint("Coincident", 2, 1, 1, 2))
sketch13.addConstraint(Sketcher.Constraint("Equal", 1, 2))
sketch13.addConstraint(Sketcher.Constraint("Radius", 0, 19.05))
sketch13.addConstraint(Sketcher.Constraint("DistanceY", 0, 3, -1, 1, 25.4))
sketch13.addConstraint(Sketcher.Constraint("DistanceX", -1, 1, 0, 1, 2.5))
sketch13.addConstraint(Sketcher.Constraint("DistanceY", 0, 1, -1, 1, 25.4))
sketch13.setExpression("Constraints[6]", "Params.sketch13_radius")
groove = body.newObject("PartDesign::Groove", "Groove")
groove.Profile = sketch13
groove.ReferenceAxis = (sketch13, ["Axis0"])
groove.setExpression("Angle", "Params.groove_angle")
doc.recompute()

linearpattern = body.newObject("PartDesign::LinearPattern", "LinearPattern")
linearpattern.Originals = [groove]
linearpattern.Direction = (doc.getObject("Y_Axis"), [""])
linearpattern.Mode = "offset"
linearpattern.setExpression("Offset", "Params.linearpattern_pitch")
linearpattern.Occurrences = 2
linearpattern.Reversed = True
body.Tip = linearpattern

doc.recompute()
